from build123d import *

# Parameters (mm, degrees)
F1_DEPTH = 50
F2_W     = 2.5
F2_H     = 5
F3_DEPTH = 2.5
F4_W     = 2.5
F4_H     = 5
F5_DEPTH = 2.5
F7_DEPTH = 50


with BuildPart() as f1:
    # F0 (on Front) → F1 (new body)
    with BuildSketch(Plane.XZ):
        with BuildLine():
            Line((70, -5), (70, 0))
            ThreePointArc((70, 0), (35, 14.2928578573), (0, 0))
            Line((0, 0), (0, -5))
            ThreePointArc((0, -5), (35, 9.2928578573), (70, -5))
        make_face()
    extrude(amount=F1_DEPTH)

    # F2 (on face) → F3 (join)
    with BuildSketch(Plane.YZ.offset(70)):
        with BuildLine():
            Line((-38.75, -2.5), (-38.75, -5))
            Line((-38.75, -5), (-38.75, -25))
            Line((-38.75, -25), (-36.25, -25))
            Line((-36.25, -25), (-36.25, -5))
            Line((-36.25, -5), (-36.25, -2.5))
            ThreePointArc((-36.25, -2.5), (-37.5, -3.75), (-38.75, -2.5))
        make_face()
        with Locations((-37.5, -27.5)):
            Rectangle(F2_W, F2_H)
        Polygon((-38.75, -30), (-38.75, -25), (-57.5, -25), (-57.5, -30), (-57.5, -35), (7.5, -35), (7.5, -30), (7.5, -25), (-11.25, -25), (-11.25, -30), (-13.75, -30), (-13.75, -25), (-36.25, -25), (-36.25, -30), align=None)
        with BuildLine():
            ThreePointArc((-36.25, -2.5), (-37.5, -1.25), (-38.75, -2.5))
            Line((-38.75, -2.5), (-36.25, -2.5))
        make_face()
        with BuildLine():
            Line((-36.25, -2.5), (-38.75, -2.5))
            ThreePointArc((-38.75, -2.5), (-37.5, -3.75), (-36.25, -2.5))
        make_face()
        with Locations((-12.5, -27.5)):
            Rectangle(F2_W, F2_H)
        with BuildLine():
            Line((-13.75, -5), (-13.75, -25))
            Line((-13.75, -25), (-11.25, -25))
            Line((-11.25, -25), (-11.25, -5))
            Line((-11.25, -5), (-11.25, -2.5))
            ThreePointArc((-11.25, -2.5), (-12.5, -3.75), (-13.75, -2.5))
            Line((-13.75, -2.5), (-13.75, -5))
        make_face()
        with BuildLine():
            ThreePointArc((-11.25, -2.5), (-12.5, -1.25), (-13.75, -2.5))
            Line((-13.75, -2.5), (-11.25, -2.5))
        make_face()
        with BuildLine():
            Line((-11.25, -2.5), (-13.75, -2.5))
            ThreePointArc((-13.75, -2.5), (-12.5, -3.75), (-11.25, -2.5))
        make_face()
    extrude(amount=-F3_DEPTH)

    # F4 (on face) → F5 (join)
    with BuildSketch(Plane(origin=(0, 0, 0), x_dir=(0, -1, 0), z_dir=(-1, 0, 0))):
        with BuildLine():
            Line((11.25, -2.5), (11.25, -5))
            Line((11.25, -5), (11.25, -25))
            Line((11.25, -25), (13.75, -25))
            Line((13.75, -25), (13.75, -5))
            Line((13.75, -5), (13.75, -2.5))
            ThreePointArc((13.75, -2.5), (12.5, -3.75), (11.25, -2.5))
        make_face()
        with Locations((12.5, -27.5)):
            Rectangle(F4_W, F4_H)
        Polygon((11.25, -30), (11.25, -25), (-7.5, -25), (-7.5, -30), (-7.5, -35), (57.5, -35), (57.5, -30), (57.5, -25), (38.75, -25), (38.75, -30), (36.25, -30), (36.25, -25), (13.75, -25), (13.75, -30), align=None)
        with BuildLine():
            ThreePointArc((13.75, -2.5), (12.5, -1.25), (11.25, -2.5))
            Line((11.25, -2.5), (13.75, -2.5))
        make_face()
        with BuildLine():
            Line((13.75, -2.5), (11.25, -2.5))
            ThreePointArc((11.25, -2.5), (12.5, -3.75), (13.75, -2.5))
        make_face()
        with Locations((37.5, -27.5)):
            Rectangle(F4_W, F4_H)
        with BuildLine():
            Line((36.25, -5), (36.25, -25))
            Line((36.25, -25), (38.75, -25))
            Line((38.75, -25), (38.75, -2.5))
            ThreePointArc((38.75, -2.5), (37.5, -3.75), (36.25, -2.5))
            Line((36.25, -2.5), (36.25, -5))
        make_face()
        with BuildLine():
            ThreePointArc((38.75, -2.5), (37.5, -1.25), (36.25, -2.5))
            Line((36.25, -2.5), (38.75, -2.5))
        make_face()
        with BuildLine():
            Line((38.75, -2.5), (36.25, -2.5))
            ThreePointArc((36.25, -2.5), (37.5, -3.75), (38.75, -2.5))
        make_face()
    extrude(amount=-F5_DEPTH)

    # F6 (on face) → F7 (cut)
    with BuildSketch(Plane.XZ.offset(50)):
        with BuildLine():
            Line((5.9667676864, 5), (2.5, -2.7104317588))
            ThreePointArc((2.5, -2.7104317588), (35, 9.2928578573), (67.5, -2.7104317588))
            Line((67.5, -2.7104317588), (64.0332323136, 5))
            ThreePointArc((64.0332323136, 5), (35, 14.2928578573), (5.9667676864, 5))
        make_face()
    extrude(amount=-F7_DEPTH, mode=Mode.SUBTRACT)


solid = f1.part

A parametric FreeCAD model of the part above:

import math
import FreeCAD as App
import Part
import Sketcher
from FreeCAD import Vector

doc = App.newDocument("Part")
body = doc.addObject("PartDesign::Body", "Body")
body.AllowCompound = True

sketch1 = doc.addObject("Sketcher::SketchObject", "Sketch")
body.addObject(sketch1)
sketch1.AttachmentSupport = (doc.XZ_Plane, [""])
sketch1.MapMode = "FlatFace"
sketch1.addGeometry(Part.LineSegment(Vector(70, -5, 0), Vector(70, 0, 0)), False)
sketch1.addGeometry(Part.ArcOfCircle(Part.Circle(Vector(35, -36, 0), Vector(0, 0, 1), 50), math.radians(46), math.radians(134)), False)
sketch1.addGeometry(Part.LineSegment(Vector(0, 0, 0), Vector(0, -5, 0)), False)
sketch1.addGeometry(Part.ArcOfCircle(Part.Circle(Vector(35, -41, 0), Vector(0, 0, 1), 50), math.radians(46), math.radians(134)), False)
sketch1.addConstraint(Sketcher.Constraint("Coincident", 0, 2, 1, 1))
sketch1.addConstraint(Sketcher.Constraint("Coincident", 1, 2, 2, 1))
sketch1.addConstraint(Sketcher.Constraint("Coincident", 2, 2, 3, 2))
sketch1.addConstraint(Sketcher.Constraint("Coincident", 3, 1, 0, 1))
sketch1.addConstraint(Sketcher.Constraint("Vertical", 0))
sketch1.addConstraint(Sketcher.Constraint("Vertical", 2))
sketch1.addConstraint(Sketcher.Constraint("Coincident", 1, 2, -1, 1))
sketch1.addConstraint(Sketcher.Constraint("Equal", 1, 3))
sketch1.addConstraint(Sketcher.Constraint("PointOnObject", 0, 2, -1))
sketch1.addConstraint(Sketcher.Constraint("Horizontal", 2, 2, 3, 1))
sketch1.addConstraint(Sketcher.Constraint("Radius", 1, 50.0))
sketch1.addConstraint(Sketcher.Constraint("DistanceY", 0, 1, 0, 2, 5.0))
sketch1.addConstraint(Sketcher.Constraint("DistanceX", -1, 1, 1, 3, 35.0))
pad1 = doc.addObject("PartDesign::Pad", "Pad")
body.addObject(pad1)
pad1.Profile = sketch1
pad1.Length = 50

sketch2 = doc.addObject("Sketcher::SketchObject", "Sketch001")
body.addObject(sketch2)
sketch2.AttachmentSupport = (doc.YZ_Plane, [""])
sketch2.MapMode = "FlatFace"
sketch2.AttachmentOffset = App.Placement(Vector(0, 0, 70), App.Rotation())
sketch2.addGeometry(Part.LineSegment(Vector(-38.8, -2.5, 0), Vector(-38.8, -25, 0)), False)
sketch2.addGeometry(Part.LineSegment(Vector(-38.8, -25, 0), Vector(-57.5, -25, 0)), False)
sketch2.addGeometry(Part.LineSegment(Vector(-57.5, -25, 0), Vector(-57.5, -35, 0)), False)
sketch2.addGeometry(Part.LineSegment(Vector(-57.5, -35, 0), Vector(7.5, -35, 0)), False)
sketch2.addGeometry(Part.LineSegment(Vector(7.5, -35, 0), Vector(7.5, -25, 0)), False)
sketch2.addGeometry(Part.LineSegment(Vector(7.5, -25, 0), Vector(-11.2, -25, 0)), False)
sketch2.addGeometry(Part.LineSegment(Vector(-11.2, -25, 0), Vector(-11.2, -2.5, 0)), False)
sketch2.addGeometry(Part.ArcOfCircle(Part.Circle(Vector(-12.5, -2.5, 0), Vector(0, 0, 1), 1.2), math.radians(0), math.radians(180)), False)
sketch2.addGeometry(Part.LineSegment(Vector(-13.8, -2.5, 0), Vector(-13.8, -25, 0)), False)
sketch2.addGeometry(Part.LineSegment(Vector(-13.8, -25, 0), Vector(-36.2, -25, 0)), False)
sketch2.addGeometry(Part.LineSegment(Vector(-36.2, -25, 0), Vector(-36.2, -2.5, 0)), False)
sketch2.addGeometry(Part.ArcOfCircle(Part.Circle(Vector(-37.5, -2.5, 0), Vector(0, 0, 1), 1.2), math.radians(0), math.radians(180)), False)
sketch2.addConstraint(Sketcher.Constraint("Coincident", 0, 2, 1, 1))
sketch2.addConstraint(Sketcher.Constraint("Coincident", 1, 2, 2, 1))
sketch2.addConstraint(Sketcher.Constraint("Coincident", 2, 2, 3, 1))
sketch2.addConstraint(Sketcher.Constraint("Coincident", 3, 2, 4, 1))
sketch2.addConstraint(Sketcher.Constraint("Coincident", 4, 2, 5, 1))
sketch2.addConstraint(Sketcher.Constraint("Coincident", 5, 2, 6, 1))
sketch2.addConstraint(Sketcher.Constraint("Tangent", 6, 2, 7, 1))
sketch2.addConstraint(Sketcher.Constraint("Tangent", 7, 2, 8, 1))
sketch2.addConstraint(Sketcher.Constraint("Coincident", 8, 2, 9, 1))
sketch2.addConstraint(Sketcher.Constraint("Coincident", 9, 2, 10, 1))
sketch2.addConstraint(Sketcher.Constraint("Tangent", 10, 2, 11, 1))
sketch2.addConstraint(Sketcher.Constraint("Tangent", 11, 2, 0, 1))
sketch2.addConstraint(Sketcher.Constraint("Vertical", 0))
sketch2.addConstraint(Sketcher.Constraint("Horizontal", 1))
sketch2.addConstraint(Sketcher.Constraint("Vertical", 2))
sketch2.addConstraint(Sketcher.Constraint("Horizontal", 3))
sketch2.addConstraint(Sketcher.Constraint("Vertical", 4))
sketch2.addConstraint(Sketcher.Constraint("Horizontal", 5))
sketch2.addConstraint(Sketcher.Constraint("Vertical", 6))
sketch2.addConstraint(Sketcher.Constraint("Vertical", 8))
sketch2.addConstraint(Sketcher.Constraint("Horizontal", 9))
sketch2.addConstraint(Sketcher.Constraint("Vertical", 10))
sketch2.addConstraint(Sketcher.Constraint("Equal", 7, 11))
sketch2.addConstraint(Sketcher.Constraint("Horizontal", 7, 3, 11, 3))
sketch2.addConstraint(Sketcher.Constraint("Horizontal", 1, 2, 4, 2))
sketch2.addConstraint(Sketcher.Constraint("Horizontal", 5, 2, 8, 2))
sketch2.addConstraint(Sketcher.Constraint("Equal", 1, 5))
sketch2.addConstraint(Sketcher.Constraint("Equal", 9, 0))
sketch2.addConstraint(Sketcher.Constraint("DistanceX", 3, 1, 3, 2, 65.0))
sketch2.addConstraint(Sketcher.Constraint("DistanceY", 2, 2, 2, 1, 10.0))
sketch2.addConstraint(Sketcher.Constraint("Radius", 7, 1.25))
sketch2.addConstraint(Sketcher.Constraint("DistanceX", 9, 2, 9, 1, 22.5))
sketch2.addConstraint(Sketcher.Constraint("DistanceY", 0, 2, -1, 1, 25.0))
sketch2.addConstraint(Sketcher.Constraint("DistanceX", 7, 3, -1, 1, 12.5))
pad2 = doc.addObject("PartDesign::Pad", "Pad001")
body.addObject(pad2)
pad2.Profile = sketch2
pad2.Length = 2.5
pad2.Reversed = True

sketch3 = doc.addObject("Sketcher::SketchObject", "Sketch002")
body.addObject(sketch3)
sketch3.AttachmentSupport = (doc.YZ_Plane, [""])
sketch3.MapMode = "FlatFace"
sketch3.addGeometry(Part.LineSegment(Vector(-11.2, -2.5, 0), Vector(-11.2, -25, 0)), False)
sketch3.addGeometry(Part.LineSegment(Vector(-11.2, -25, 0), Vector(7.5, -25, 0)), False)
sketch3.addGeometry(Part.LineSegment(Vector(7.5, -25, 0), Vector(7.5, -35, 0)), False)
sketch3.addGeometry(Part.LineSegment(Vector(7.5, -35, 0), Vector(-57.5, -35, 0)), False)
sketch3.addGeometry(Part.LineSegment(Vector(-57.5, -35, 0), Vector(-57.5, -25, 0)), False)
sketch3.addGeometry(Part.LineSegment(Vector(-57.5, -25, 0), Vector(-38.8, -25, 0)), False)
sketch3.addGeometry(Part.LineSegment(Vector(-38.8, -25, 0), Vector(-38.8, -2.5, 0)), False)
sketch3.addGeometry(Part.ArcOfCircle(Part.Circle(Vector(-37.5, -2.5, 0), Vector(0, 0, 1), 1.2), math.radians(0), math.radians(180)), False)
sketch3.addGeometry(Part.LineSegment(Vector(-36.2, -2.5, 0), Vector(-36.2, -25, 0)), False)
sketch3.addGeometry(Part.LineSegment(Vector(-36.2, -25, 0), Vector(-13.8, -25, 0)), False)
sketch3.addGeometry(Part.LineSegment(Vector(-13.8, -25, 0), Vector(-13.8, -2.5, 0)), False)
sketch3.addGeometry(Part.ArcOfCircle(Part.Circle(Vector(-12.5, -2.5, 0), Vector(0, 0, 1), 1.2), math.radians(0), math.radians(180)), False)
sketch3.addConstraint(Sketcher.Constraint("Coincident", 0, 2, 1, 1))
sketch3.addConstraint(Sketcher.Constraint("Coincident", 1, 2, 2, 1))
sketch3.addConstraint(Sketcher.Constraint("Coincident", 2, 2, 3, 1))
sketch3.addConstraint(Sketcher.Constraint("Coincident", 3, 2, 4, 1))
sketch3.addConstraint(Sketcher.Constraint("Coincident", 4, 2, 5, 1))
sketch3.addConstraint(Sketcher.Constraint("Coincident", 5, 2, 6, 1))
sketch3.addConstraint(Sketcher.Constraint("Tangent", 6, 2, 7, 2))
sketch3.addConstraint(Sketcher.Constraint("Tangent", 7, 1, 8, 1))
sketch3.addConstraint(Sketcher.Constraint("Coincident", 8, 2, 9, 1))
sketch3.addConstraint(Sketcher.Constraint("Coincident", 9, 2, 10, 1))
sketch3.addConstraint(Sketcher.Constraint("Tangent", 10, 2, 11, 2))
sketch3.addConstraint(Sketcher.Constraint("Tangent", 11, 1, 0, 1))
sketch3.addConstraint(Sketcher.Constraint("Vertical", 0))
sketch3.addConstraint(Sketcher.Constraint("Horizontal", 1))
sketch3.addConstraint(Sketcher.Constraint("Vertical", 2))
sketch3.addConstraint(Sketcher.Constraint("Horizontal", 3))
sketch3.addConstraint(Sketcher.Constraint("Vertical", 4))
sketch3.addConstraint(Sketcher.Constraint("Horizontal", 5))
sketch3.addConstraint(Sketcher.Constraint("Vertical", 6))
sketch3.addConstraint(Sketcher.Constraint("Vertical", 8))
sketch3.addConstraint(Sketcher.Constraint("Horizontal", 9))
sketch3.addConstraint(Sketcher.Constraint("Vertical", 10))
sketch3.addConstraint(Sketcher.Constraint("Equal", 7, 11))
sketch3.addConstraint(Sketcher.Constraint("Horizontal", 7, 3, 11, 3))
sketch3.addConstraint(Sketcher.Constraint("Horizontal", 1, 2, 4, 2))
sketch3.addConstraint(Sketcher.Constraint("Horizontal", 5, 2, 8, 2))
sketch3.addConstraint(Sketcher.Constraint("Equal", 1, 5))
sketch3.addConstraint(Sketcher.Constraint("Equal", 9, 0))
sketch3.addConstraint(Sketcher.Constraint("DistanceX", 3, 2, 3, 1, 65.0))
sketch3.addConstraint(Sketcher.Constraint("DistanceY", 2, 2, 2, 1, 10.0))
sketch3.addConstraint(Sketcher.Constraint("Radius", 7, 1.25))
sketch3.addConstraint(Sketcher.Constraint("DistanceX", 9, 1, 9, 2, 22.5))
sketch3.addConstraint(Sketcher.Constraint("DistanceY", 0, 2, -1, 1, 25.0))
sketch3.addConstraint(Sketcher.Constraint("DistanceX", 7, 3, -1, 1, 37.5))
pad3 = doc.addObject("PartDesign::Pad", "Pad002")
body.addObject(pad3)
pad3.Profile = sketch3
pad3.Length = 2.5

sketch4 = doc.addObject("Sketcher::SketchObject", "Sketch003")
body.addObject(sketch4)
sketch4.AttachmentSupport = (doc.XZ_Plane, [""])
sketch4.MapMode = "FlatFace"
sketch4.AttachmentOffset = App.Placement(Vector(0, 0, 50), App.Rotation())
sketch4.addGeometry(Part.LineSegment(Vector(6, 5, 0), Vector(2, -3, 0)), False)
sketch4.addGeometry(Part.ArcOfCircle(Part.Circle(Vector(35, -41, 0), Vector(0, 0, 1), 50), math.radians(49), math.radians(131)), False)
sketch4.addGeometry(Part.LineSegment(Vector(68, -3, 0), Vector(64, 5, 0)), False)
sketch4.addGeometry(Part.ArcOfCircle(Part.Circle(Vector(35, -36, 0), Vector(0, 0, 1), 50), math.radians(55), math.radians(125)), False)
sketch4.addConstraint(Sketcher.Constraint("Coincident", 0, 2, 1, 2))
sketch4.addConstraint(Sketcher.Constraint("Coincident", 1, 1, 2, 1))
sketch4.addConstraint(Sketcher.Constraint("Coincident", 2, 2, 3, 1))
sketch4.addConstraint(Sketcher.Constraint("Coincident", 3, 2, 0, 1))
sketch4.addConstraint(Sketcher.Constraint("Equal", 1, 3))
sketch4.addConstraint(Sketcher.Constraint("Horizontal", 0, 2, 1, 1))
sketch4.addConstraint(Sketcher.Constraint("Horizontal", 2, 2, 3, 2))
sketch4.addConstraint(Sketcher.Constraint("Vertical", 1, 3, 3, 3))
sketch4.addConstraint(Sketcher.Constraint("Radius", 1, 50.0))
sketch4.addConstraint(Sketcher.Constraint("DistanceX", -1, 1, 1, 3, 35.0))
sketch4.addConstraint(Sketcher.Constraint("DistanceY", -1, 1, 2, 2, 5.0))
sketch4.addConstraint(Sketcher.Constraint("DistanceY", 1, 3, 3, 3, 5.0))
sketch4.addConstraint(Sketcher.Constraint("DistanceX", 0, 2, 1, 1, 65.0))
sketch4.addConstraint(Sketcher.Constraint("DistanceY", 0, 2, -1, 1, 2.710432))
pocket1 = doc.addObject("PartDesign::Pocket", "Pocket")
body.addObject(pocket1)
pocket1.Profile = sketch4
pocket1.Length = 50

doc.recompute()
